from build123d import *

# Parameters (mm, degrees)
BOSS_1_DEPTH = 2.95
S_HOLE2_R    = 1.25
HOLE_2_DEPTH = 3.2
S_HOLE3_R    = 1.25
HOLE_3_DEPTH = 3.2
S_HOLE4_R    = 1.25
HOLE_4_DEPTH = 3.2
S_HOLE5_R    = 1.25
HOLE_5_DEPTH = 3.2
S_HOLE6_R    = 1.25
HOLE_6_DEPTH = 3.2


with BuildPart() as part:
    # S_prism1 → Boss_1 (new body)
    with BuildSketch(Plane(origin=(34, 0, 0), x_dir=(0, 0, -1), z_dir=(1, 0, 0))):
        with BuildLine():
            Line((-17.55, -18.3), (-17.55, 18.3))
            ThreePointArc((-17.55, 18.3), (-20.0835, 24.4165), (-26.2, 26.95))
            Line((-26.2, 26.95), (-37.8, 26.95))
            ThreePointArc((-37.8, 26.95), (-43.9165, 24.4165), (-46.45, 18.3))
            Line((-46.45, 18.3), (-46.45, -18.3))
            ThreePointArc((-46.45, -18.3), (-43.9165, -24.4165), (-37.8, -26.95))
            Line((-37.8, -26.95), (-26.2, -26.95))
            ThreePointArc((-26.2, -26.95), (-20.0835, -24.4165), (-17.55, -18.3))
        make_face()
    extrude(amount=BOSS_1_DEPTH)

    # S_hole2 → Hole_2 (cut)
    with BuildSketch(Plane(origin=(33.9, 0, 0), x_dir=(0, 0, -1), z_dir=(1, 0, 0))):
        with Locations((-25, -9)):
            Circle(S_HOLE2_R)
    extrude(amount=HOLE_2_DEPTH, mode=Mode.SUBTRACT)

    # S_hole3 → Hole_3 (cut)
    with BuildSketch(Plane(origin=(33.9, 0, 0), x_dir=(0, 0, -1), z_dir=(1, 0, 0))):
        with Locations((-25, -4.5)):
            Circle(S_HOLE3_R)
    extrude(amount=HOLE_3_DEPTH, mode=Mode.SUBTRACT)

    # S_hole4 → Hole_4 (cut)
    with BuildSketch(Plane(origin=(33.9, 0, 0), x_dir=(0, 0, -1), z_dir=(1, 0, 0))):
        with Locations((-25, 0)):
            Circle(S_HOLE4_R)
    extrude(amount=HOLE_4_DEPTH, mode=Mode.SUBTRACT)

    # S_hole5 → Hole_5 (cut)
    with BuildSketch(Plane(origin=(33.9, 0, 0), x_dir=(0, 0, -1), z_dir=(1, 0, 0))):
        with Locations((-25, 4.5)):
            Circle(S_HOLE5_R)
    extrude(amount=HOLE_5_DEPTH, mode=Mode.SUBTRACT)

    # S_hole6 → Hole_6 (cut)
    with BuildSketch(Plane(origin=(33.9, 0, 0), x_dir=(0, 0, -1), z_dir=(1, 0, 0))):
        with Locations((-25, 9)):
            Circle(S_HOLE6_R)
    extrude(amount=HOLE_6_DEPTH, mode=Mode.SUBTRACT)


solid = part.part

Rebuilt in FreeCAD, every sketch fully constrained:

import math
import FreeCAD as App
import Part
import Sketcher
Q = App.Units.Quantity

doc = App.newDocument("Part")
body = doc.addObject("PartDesign::Body", "Body")

sketch1 = body.newObject("Sketcher::SketchObject", "Sketch")
sketch1.AttachmentSupport = (doc.getObject("YZ_Plane"), [""])
sketch1.MapMode = "FlatFace"
sketch1.AttachmentOffset = App.Placement(App.Vector(0, 0, 34), App.Rotation())
sketch1.addGeometry(Part.LineSegment(App.Vector(-18, 18, 0), App.Vector(18, 18, 0)), False)
sketch1.addGeometry(Part.ArcOfCircle(Part.Circle(App.Vector(18, 26, 0), App.Vector(0, 0, 1), 9), math.radians(-90), math.radians(0)), False)
sketch1.addGeometry(Part.LineSegment(App.Vector(27, 26, 0), App.Vector(27, 38, 0)), False)
sketch1.addGeometry(Part.ArcOfCircle(Part.Circle(App.Vector(18, 38, 0), App.Vector(0, 0, 1), 9), math.radians(0), math.radians(90)), False)
sketch1.addGeometry(Part.LineSegment(App.Vector(18, 46, 0), App.Vector(-18, 46, 0)), False)
sketch1.addGeometry(Part.ArcOfCircle(Part.Circle(App.Vector(-18, 38, 0), App.Vector(0, 0, 1), 9), math.radians(90), math.radians(180)), False)
sketch1.addGeometry(Part.LineSegment(App.Vector(-27, 38, 0), App.Vector(-27, 26, 0)), False)
sketch1.addGeometry(Part.ArcOfCircle(Part.Circle(App.Vector(-18, 26, 0), App.Vector(0, 0, 1), 9), math.radians(180), math.radians(270)), False)
sketch1.addConstraint(Sketcher.Constraint("Coincident", 0, 2, 1, 1))
sketch1.addConstraint(Sketcher.Constraint("Coincident", 1, 2, 2, 1))
sketch1.addConstraint(Sketcher.Constraint("Coincident", 2, 2, 3, 1))
sketch1.addConstraint(Sketcher.Constraint("Coincident", 3, 2, 4, 1))
sketch1.addConstraint(Sketcher.Constraint("Coincident", 4, 2, 5, 1))
sketch1.addConstraint(Sketcher.Constraint("Coincident", 5, 2, 6, 1))
sketch1.addConstraint(Sketcher.Constraint("Coincident", 6, 2, 7, 1))
sketch1.addConstraint(Sketcher.Constraint("Coincident", 7, 2, 0, 1))
sketch1.addConstraint(Sketcher.Constraint("Horizontal", 0))
sketch1.addConstraint(Sketcher.Constraint("Vertical", 2))
sketch1.addConstraint(Sketcher.Constraint("Horizontal", 4))
sketch1.addConstraint(Sketcher.Constraint("Vertical", 6))
sketch1.addConstraint(Sketcher.Constraint("Equal", 1, 3))
sketch1.addConstraint(Sketcher.Constraint("Equal", 3, 5))
sketch1.addConstraint(Sketcher.Constraint("Equal", 5, 7))
sketch1.addConstraint(Sketcher.Constraint("Symmetric", 2, 2, 5, 2, -2))
sketch1.addConstraint(Sketcher.Constraint("Horizontal", 1, 2, 6, 2))
sketch1.addConstraint(Sketcher.Constraint("Vertical", 0, 2, 3, 2))
sketch1.addConstraint(Sketcher.Constraint("Vertical", 4, 2, 7, 2))
sketch1.addConstraint(Sketcher.Constraint("DistanceX", 0, 1, 0, 2, Q("36.6 mm")))
sketch1.addConstraint(Sketcher.Constraint("DistanceY", 2, 1, 2, 2, Q("11.6 mm")))
sketch1.addConstraint(Sketcher.Constraint("DistanceX", -1, 1, 0, 2, Q("18.3 mm")))
sketch1.addConstraint(Sketcher.Constraint("DistanceY", -1, 1, 1, 2, Q("26.2 mm")))
sketch1.addConstraint(Sketcher.Constraint("DistanceY", 0, 2, 3, 2, Q("28.9 mm")))
sketch1.addConstraint(Sketcher.Constraint("DistanceY", -1, 1, 0, 2, Q("17.55 mm")))
sketch1.addConstraint(Sketcher.Constraint("DistanceX", -1, 1, 1, 2, Q("26.95 mm")))
sketch1.addConstraint(Sketcher.Constraint("Radius", 1, Q("8.64991 mm")))
pad1 = body.newObject("PartDesign::Pad", "Pad")
pad1.Profile = sketch1
pad1.Length = 2.95

sketch2 = body.newObject("Sketcher::SketchObject", "Sketch001")
sketch2.AttachmentSupport = (doc.getObject("YZ_Plane"), [""])
sketch2.MapMode = "FlatFace"
sketch2.AttachmentOffset = App.Placement(App.Vector(0, 0, 33.9), App.Rotation())
sketch2.addGeometry(Part.Circle(App.Vector(-9, 25, 0), App.Vector(0, 0, 1), 1.2), False)
sketch2.addConstraint(Sketcher.Constraint("Diameter", 0, Q("2.5 mm")))
sketch2.addConstraint(Sketcher.Constraint("DistanceX", 0, 3, -1, 1, Q("9 mm")))
sketch2.addConstraint(Sketcher.Constraint("DistanceY", -1, 1, 0, 3, Q("25 mm")))
pocket1 = body.newObject("PartDesign::Pocket", "Pocket")
pocket1.Profile = sketch2
pocket1.Length = 3.2
pocket1.Reversed = True

sketch3 = body.newObject("Sketcher::SketchObject", "Sketch002")
sketch3.AttachmentSupport = (doc.getObject("YZ_Plane"), [""])
sketch3.MapMode = "FlatFace"
sketch3.AttachmentOffset = App.Placement(App.Vector(0, 0, 33.9), App.Rotation())
sketch3.addGeometry(Part.Circle(App.Vector(-4.5, 25, 0), App.Vector(0, 0, 1), 1.2), False)
sketch3.addConstraint(Sketcher.Constraint("Diameter", 0, Q("2.5 mm")))
sketch3.addConstraint(Sketcher.Constraint("DistanceY", -1, 1, 0, 3, Q("25 mm")))
sketch3.addConstraint(Sketcher.Constraint("DistanceX", 0, 3, -1, 1, Q("4.5 mm")))
pocket2 = body.newObject("PartDesign::Pocket", "Pocket001")
pocket2.Profile = sketch3
pocket2.Length = 3.2
pocket2.Reversed = True

sketch4 = body.newObject("Sketcher::SketchObject", "Sketch003")
sketch4.AttachmentSupport = (doc.getObject("YZ_Plane"), [""])
sketch4.MapMode = "FlatFace"
sketch4.AttachmentOffset = App.Placement(App.Vector(0, 0, 33.9), App.Rotation())
sketch4.addGeometry(Part.Circle(App.Vector(0, 25, 0), App.Vector(0, 0, 1), 1.2), False)
sketch4.addConstraint(Sketcher.Constraint("PointOnObject", 0, 3, -2))
sketch4.addConstraint(Sketcher.Constraint("Diameter", 0, Q("2.5 mm")))
sketch4.addConstraint(Sketcher.Constraint("DistanceY", -1, 1, 0, 3, Q("25 mm")))
pocket3 = body.newObject("PartDesign::Pocket", "Pocket002")
pocket3.Profile = sketch4
pocket3.Length = 3.2
pocket3.Reversed = True

sketch5 = body.newObject("Sketcher::SketchObject", "Sketch004")
sketch5.AttachmentSupport = (doc.getObject("YZ_Plane"), [""])
sketch5.MapMode = "FlatFace"
sketch5.AttachmentOffset = App.Placement(App.Vector(0, 0, 33.9), App.Rotation())
sketch5.addGeometry(Part.Circle(App.Vector(4.5, 25, 0), App.Vector(0, 0, 1), 1.2), False)
sketch5.addConstraint(Sketcher.Constraint("Diameter", 0, Q("2.5 mm")))
sketch5.addConstraint(Sketcher.Constraint("DistanceY", -1, 1, 0, 3, Q("25 mm")))
sketch5.addConstraint(Sketcher.Constraint("DistanceX", -1, 1, 0, 3, Q("4.5 mm")))
pocket4 = body.newObject("PartDesign::Pocket", "Pocket003")
pocket4.Profile = sketch5
pocket4.Length = 3.2
pocket4.Reversed = True

sketch6 = body.newObject("Sketcher::SketchObject", "Sketch005")
sketch6.AttachmentSupport = (doc.getObject("YZ_Plane"), [""])
sketch6.MapMode = "FlatFace"
sketch6.AttachmentOffset = App.Placement(App.Vector(0, 0, 33.9), App.Rotation())
sketch6.addGeometry(Part.Circle(App.Vector(9, 25, 0), App.Vector(0, 0, 1), 1.2), False)
sketch6.addConstraint(Sketcher.Constraint("Diameter", 0, Q("2.5 mm")))
sketch6.addConstraint(Sketcher.Constraint("DistanceX", -1, 1, 0, 3, Q("9 mm")))
sketch6.addConstraint(Sketcher.Constraint("DistanceY", -1, 1, 0, 3, Q("25 mm")))
pocket5 = body.newObject("PartDesign::Pocket", "Pocket004")
pocket5.Profile = sketch6
pocket5.Length = 3.2
pocket5.Reversed = True

doc.recompute()
